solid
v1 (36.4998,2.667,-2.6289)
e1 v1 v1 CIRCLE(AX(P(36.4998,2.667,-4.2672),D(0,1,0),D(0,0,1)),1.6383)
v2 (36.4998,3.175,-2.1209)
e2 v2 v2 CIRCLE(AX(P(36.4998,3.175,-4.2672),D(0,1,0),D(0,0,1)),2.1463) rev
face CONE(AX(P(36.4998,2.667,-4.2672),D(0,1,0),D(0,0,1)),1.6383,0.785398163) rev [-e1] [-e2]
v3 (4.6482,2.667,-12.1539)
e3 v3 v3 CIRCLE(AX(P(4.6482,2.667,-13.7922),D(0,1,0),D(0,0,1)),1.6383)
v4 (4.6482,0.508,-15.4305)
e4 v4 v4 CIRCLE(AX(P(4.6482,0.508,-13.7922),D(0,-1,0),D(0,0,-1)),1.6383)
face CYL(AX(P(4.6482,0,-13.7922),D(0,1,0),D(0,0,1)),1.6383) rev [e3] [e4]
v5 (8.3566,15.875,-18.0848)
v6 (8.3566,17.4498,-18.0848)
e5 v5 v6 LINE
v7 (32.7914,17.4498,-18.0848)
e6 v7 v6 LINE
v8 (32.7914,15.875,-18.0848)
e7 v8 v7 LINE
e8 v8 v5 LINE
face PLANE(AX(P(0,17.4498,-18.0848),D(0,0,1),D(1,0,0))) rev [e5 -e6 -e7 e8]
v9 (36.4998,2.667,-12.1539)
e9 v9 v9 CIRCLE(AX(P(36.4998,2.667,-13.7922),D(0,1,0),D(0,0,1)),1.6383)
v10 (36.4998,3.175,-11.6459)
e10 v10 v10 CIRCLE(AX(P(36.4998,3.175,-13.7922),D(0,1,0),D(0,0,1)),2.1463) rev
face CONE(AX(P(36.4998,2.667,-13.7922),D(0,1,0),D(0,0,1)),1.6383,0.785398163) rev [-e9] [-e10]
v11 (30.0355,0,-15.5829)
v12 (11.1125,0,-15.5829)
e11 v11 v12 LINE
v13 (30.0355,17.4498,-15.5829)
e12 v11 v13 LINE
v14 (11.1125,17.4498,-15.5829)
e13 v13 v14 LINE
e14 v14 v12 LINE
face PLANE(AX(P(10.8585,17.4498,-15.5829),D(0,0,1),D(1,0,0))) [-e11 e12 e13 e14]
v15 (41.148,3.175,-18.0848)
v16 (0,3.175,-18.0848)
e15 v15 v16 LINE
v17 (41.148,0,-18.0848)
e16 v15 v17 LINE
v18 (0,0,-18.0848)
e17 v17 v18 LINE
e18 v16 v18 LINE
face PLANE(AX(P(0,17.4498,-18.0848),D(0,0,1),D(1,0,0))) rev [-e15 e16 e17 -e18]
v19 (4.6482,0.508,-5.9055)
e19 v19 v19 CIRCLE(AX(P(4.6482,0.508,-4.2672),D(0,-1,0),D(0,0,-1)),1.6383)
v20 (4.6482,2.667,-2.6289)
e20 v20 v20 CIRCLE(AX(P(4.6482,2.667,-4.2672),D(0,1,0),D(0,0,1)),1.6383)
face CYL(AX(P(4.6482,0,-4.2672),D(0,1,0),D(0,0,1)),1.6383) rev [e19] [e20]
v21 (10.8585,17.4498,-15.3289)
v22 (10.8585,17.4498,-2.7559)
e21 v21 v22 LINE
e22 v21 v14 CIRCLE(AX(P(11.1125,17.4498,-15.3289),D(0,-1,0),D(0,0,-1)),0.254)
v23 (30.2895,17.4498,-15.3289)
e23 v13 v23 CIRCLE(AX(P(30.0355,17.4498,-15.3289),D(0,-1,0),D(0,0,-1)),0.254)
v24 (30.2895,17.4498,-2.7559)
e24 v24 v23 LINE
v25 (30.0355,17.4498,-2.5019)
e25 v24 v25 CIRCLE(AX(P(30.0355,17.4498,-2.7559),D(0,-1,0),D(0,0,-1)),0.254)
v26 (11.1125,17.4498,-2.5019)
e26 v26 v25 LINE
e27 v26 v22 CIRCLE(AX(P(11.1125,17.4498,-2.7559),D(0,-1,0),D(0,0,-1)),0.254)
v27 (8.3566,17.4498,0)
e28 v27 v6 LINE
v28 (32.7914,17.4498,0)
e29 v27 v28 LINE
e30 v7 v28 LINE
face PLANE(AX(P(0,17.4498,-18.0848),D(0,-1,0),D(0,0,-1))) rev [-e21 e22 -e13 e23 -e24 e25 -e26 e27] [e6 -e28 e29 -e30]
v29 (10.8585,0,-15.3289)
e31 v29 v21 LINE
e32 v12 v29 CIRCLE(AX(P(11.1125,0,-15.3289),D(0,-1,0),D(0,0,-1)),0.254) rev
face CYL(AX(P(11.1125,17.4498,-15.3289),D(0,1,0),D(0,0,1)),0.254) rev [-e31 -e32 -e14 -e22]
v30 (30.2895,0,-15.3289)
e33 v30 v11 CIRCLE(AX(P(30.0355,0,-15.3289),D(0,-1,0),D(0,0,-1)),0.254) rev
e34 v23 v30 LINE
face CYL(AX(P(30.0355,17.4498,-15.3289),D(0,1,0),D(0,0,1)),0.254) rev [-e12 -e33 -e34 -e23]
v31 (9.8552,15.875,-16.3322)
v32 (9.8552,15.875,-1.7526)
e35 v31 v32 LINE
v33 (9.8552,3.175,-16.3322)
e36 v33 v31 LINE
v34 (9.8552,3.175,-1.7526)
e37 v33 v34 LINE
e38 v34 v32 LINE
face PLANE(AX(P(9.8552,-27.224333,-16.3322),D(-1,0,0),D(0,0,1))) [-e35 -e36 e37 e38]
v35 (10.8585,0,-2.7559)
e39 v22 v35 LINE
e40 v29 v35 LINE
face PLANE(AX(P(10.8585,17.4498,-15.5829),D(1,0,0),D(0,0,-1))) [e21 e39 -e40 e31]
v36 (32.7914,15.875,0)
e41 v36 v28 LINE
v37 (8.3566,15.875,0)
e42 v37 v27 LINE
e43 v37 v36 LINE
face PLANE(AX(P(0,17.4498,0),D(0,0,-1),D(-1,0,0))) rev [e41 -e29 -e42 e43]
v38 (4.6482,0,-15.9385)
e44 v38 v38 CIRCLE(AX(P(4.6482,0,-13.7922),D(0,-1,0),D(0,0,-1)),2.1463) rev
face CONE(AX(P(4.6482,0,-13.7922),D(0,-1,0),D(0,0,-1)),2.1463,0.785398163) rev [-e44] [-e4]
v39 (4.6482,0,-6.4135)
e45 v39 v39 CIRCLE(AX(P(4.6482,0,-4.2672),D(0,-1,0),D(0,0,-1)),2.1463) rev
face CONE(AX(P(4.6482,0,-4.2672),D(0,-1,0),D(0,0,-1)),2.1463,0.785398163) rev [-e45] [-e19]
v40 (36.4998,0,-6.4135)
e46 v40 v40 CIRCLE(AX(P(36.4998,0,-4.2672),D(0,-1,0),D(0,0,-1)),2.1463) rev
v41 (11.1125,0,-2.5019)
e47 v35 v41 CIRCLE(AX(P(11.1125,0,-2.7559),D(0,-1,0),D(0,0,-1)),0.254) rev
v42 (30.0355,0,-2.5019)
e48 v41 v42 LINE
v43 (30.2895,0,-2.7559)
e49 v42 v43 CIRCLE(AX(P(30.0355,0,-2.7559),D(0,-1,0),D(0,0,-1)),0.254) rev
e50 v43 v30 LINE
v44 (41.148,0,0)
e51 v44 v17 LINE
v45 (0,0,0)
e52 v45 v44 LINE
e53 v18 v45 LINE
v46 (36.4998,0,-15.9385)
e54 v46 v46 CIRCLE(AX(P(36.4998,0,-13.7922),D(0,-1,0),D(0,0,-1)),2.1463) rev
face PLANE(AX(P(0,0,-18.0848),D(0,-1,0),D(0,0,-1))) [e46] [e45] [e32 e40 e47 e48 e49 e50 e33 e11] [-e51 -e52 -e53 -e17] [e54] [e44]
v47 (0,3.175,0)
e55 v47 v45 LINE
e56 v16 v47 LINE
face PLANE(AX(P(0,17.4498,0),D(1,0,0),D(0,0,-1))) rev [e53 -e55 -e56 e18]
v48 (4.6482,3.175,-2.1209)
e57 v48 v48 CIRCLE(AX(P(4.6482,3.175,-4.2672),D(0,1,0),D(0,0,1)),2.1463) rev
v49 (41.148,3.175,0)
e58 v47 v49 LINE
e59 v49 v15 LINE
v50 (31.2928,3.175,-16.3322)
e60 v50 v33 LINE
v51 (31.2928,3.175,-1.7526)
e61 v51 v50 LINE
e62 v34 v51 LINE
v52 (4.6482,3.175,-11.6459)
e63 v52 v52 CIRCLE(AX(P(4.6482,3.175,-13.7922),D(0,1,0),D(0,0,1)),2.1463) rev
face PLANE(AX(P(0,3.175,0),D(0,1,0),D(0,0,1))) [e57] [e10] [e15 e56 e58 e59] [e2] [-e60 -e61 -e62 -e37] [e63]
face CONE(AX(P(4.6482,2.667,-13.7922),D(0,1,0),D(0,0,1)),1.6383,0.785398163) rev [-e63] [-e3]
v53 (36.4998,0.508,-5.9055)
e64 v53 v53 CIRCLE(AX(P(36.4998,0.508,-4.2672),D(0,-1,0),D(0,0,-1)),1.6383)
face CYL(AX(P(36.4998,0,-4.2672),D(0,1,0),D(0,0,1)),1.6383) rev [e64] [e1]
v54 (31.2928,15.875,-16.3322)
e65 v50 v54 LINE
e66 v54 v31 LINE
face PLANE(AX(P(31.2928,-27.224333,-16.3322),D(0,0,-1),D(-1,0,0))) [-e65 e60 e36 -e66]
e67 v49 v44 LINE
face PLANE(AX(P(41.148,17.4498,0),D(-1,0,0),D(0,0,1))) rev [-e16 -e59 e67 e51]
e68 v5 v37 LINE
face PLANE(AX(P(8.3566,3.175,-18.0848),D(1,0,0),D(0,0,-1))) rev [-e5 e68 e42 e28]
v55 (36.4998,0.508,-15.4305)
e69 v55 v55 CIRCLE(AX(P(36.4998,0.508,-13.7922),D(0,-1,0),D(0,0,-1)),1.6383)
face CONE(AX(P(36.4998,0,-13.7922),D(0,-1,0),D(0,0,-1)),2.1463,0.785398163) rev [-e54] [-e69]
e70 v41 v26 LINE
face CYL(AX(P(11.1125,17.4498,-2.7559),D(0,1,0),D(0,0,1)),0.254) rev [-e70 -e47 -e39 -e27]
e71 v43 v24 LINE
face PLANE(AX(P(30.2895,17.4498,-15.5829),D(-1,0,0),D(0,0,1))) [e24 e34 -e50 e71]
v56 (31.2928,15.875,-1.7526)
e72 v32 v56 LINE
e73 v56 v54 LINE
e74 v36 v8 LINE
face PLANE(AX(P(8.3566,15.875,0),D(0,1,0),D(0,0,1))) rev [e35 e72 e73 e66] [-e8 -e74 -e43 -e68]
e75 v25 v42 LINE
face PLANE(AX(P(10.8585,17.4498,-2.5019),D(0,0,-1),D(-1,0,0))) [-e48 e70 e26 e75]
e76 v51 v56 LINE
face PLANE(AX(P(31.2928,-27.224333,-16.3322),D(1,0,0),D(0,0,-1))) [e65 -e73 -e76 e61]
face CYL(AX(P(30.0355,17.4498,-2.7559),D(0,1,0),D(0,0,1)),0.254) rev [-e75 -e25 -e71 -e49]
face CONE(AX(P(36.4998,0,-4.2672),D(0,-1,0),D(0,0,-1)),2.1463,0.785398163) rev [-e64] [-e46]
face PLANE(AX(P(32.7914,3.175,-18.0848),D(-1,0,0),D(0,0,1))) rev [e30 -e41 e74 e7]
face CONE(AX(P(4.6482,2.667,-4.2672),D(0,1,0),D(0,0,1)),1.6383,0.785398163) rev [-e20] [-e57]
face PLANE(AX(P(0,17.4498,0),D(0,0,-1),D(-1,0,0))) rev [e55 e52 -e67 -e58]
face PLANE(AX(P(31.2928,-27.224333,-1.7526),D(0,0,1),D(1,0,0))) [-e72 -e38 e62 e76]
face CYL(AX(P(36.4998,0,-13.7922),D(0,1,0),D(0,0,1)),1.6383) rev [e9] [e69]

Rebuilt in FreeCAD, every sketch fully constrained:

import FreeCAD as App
import Part
import Sketcher
Q = App.Units.Quantity


def edges_at(feature, points):
    """Names of the edges that pass closest to the given points."""
    edges = feature.Shape.Edges
    near = lambda p: min(range(len(edges)), key=lambda i: edges[i].distToShape(Part.Vertex(*p))[0])
    return sorted({f"Edge{near(p) + 1}" for p in points})

doc = App.newDocument("Part")
body = doc.addObject("PartDesign::Body", "Body")

# Sketch on XZ plane
sketch1 = body.newObject("Sketcher::SketchObject", "Sketch")
sketch1.AttachmentSupport = (doc.getObject("XZ_Plane"), [""])
sketch1.MapMode = "FlatFace"
sketch1.addGeometry(Part.LineSegment(App.Vector(0, -18.0848, 0), App.Vector(0, 0, 0)), False)
sketch1.addGeometry(Part.LineSegment(App.Vector(0, 0, 0), App.Vector(41.148, 0, 0)), False)
sketch1.addGeometry(Part.LineSegment(App.Vector(41.148, 0, 0), App.Vector(41.148, -18.0848, 0)), False)
sketch1.addGeometry(Part.LineSegment(App.Vector(41.148, -18.0848, 0), App.Vector(0, -18.0848, 0)), False)
sketch1.addGeometry(Part.LineSegment(App.Vector(30.2895, -2.5019, 0), App.Vector(10.8585, -2.5019, 0)), False)
sketch1.addGeometry(Part.LineSegment(App.Vector(10.8585, -2.5019, 0), App.Vector(10.8585, -15.5829, 0)), False)
sketch1.addGeometry(Part.LineSegment(App.Vector(10.8585, -15.5829, 0), App.Vector(30.2895, -15.5829, 0)), False)
sketch1.addGeometry(Part.LineSegment(App.Vector(30.2895, -15.5829, 0), App.Vector(30.2895, -2.5019, 0)), False)
sketch1.addConstraint(Sketcher.Constraint("Coincident", 0, 2, 1, 1))
sketch1.addConstraint(Sketcher.Constraint("Coincident", 1, 2, 2, 1))
sketch1.addConstraint(Sketcher.Constraint("Coincident", 2, 2, 3, 1))
sketch1.addConstraint(Sketcher.Constraint("Coincident", 3, 2, 0, 1))
sketch1.addConstraint(Sketcher.Constraint("Coincident", 4, 2, 5, 1))
sketch1.addConstraint(Sketcher.Constraint("Coincident", 5, 2, 6, 1))
sketch1.addConstraint(Sketcher.Constraint("Coincident", 6, 2, 7, 1))
sketch1.addConstraint(Sketcher.Constraint("Coincident", 7, 2, 4, 1))
sketch1.addConstraint(Sketcher.Constraint("Vertical", 0))
sketch1.addConstraint(Sketcher.Constraint("Horizontal", 1))
sketch1.addConstraint(Sketcher.Constraint("Vertical", 2))
sketch1.addConstraint(Sketcher.Constraint("Horizontal", 3))
sketch1.addConstraint(Sketcher.Constraint("Horizontal", 4))
sketch1.addConstraint(Sketcher.Constraint("Vertical", 5))
sketch1.addConstraint(Sketcher.Constraint("Horizontal", 6))
sketch1.addConstraint(Sketcher.Constraint("Vertical", 7))
sketch1.addConstraint(Sketcher.Constraint("Coincident", 0, 2, -1, 1))
sketch1.addConstraint(Sketcher.Constraint("DistanceX", 1, 1, 1, 2, Q("1.62 in")))
sketch1.addConstraint(Sketcher.Constraint("DistanceX", 4, 2, 4, 1, Q("0.765 in")))
sketch1.addConstraint(Sketcher.Constraint("DistanceY", 0, 1, 0, 2, Q("0.712 in")))
sketch1.addConstraint(Sketcher.Constraint("DistanceY", 5, 2, 5, 1, Q("0.515 in")))
sketch1.addConstraint(Sketcher.Constraint("DistanceX", -1, 1, 4, 2, Q("0.4275 in")))
sketch1.addConstraint(Sketcher.Constraint("DistanceY", 4, 2, -1, 1, Q("0.0985 in")))
pad1 = body.newObject("PartDesign::Pad", "Pad")
pad1.Profile = sketch1
pad1.Length = Q("0.687 in")
pad1.Reversed = True

# Sketch on XZ plane
sketch2 = body.newObject("Sketcher::SketchObject", "Sketch001")
sketch2.AttachmentSupport = (doc.getObject("XZ_Plane"), [""])
sketch2.MapMode = "FlatFace"
sketch2.AttachmentOffset = App.Placement(App.Vector(0, 0, -0.687 * 25.4), App.Rotation())
sketch2.addGeometry(Part.LineSegment(App.Vector(8.3566, 0, 0), App.Vector(8.3566, -18.0848, 0)), False)
sketch2.addGeometry(Part.LineSegment(App.Vector(8.3566, -18.0848, 0), App.Vector(0, -18.0848, 0)), False)
sketch2.addGeometry(Part.LineSegment(App.Vector(0, -18.0848, 0), App.Vector(0, 0, 0)), False)
sketch2.addGeometry(Part.LineSegment(App.Vector(0, 0, 0), App.Vector(8.3566, 0, 0)), False)
sketch2.addGeometry(Part.LineSegment(App.Vector(41.148, 0, 0), App.Vector(41.148, -18.0848, 0)), False)
sketch2.addGeometry(Part.LineSegment(App.Vector(41.148, -18.0848, 0), App.Vector(32.7914, -18.0848, 0)), False)
sketch2.addGeometry(Part.LineSegment(App.Vector(32.7914, -18.0848, 0), App.Vector(32.7914, 0, 0)), False)
sketch2.addGeometry(Part.LineSegment(App.Vector(32.7914, 0, 0), App.Vector(41.148, 0, 0)), False)
sketch2.addConstraint(Sketcher.Constraint("Coincident", 0, 2, 1, 1))
sketch2.addConstraint(Sketcher.Constraint("Coincident", 1, 2, 2, 1))
sketch2.addConstraint(Sketcher.Constraint("Coincident", 2, 2, 3, 1))
sketch2.addConstraint(Sketcher.Constraint("Coincident", 3, 2, 0, 1))
sketch2.addConstraint(Sketcher.Constraint("Coincident", 4, 2, 5, 1))
sketch2.addConstraint(Sketcher.Constraint("Coincident", 5, 2, 6, 1))
sketch2.addConstraint(Sketcher.Constraint("Coincident", 6, 2, 7, 1))
sketch2.addConstraint(Sketcher.Constraint("Coincident", 7, 2, 4, 1))
sketch2.addConstraint(Sketcher.Constraint("Vertical", 0))
sketch2.addConstraint(Sketcher.Constraint("Horizontal", 1))
sketch2.addConstraint(Sketcher.Constraint("Vertical", 2))
sketch2.addConstraint(Sketcher.Constraint("Horizontal", 3))
sketch2.addConstraint(Sketcher.Constraint("Vertical", 4))
sketch2.addConstraint(Sketcher.Constraint("Horizontal", 5))
sketch2.addConstraint(Sketcher.Constraint("Vertical", 6))
sketch2.addConstraint(Sketcher.Constraint("Horizontal", 7))
sketch2.addConstraint(Sketcher.Constraint("Coincident", 2, 2, -1, 1))
sketch2.addConstraint(Sketcher.Constraint("PointOnObject", 6, 2, -1))
sketch2.addConstraint(Sketcher.Constraint("Horizontal", 1, 2, 4, 2))
sketch2.addConstraint(Sketcher.Constraint("Equal", 3, 5))
sketch2.addConstraint(Sketcher.Constraint("DistanceX", 1, 2, 1, 1, Q("0.329 in")))
sketch2.addConstraint(Sketcher.Constraint("DistanceY", 0, 2, 0, 1, Q("0.712 in")))
sketch2.addConstraint(Sketcher.Constraint("DistanceX", -1, 1, 4, 2, Q("1.62 in")))
pocket1 = body.newObject("PartDesign::Pocket", "Pocket")
pocket1.Profile = sketch2
pocket1.Length = Q("0.562 in")
pocket1.Reversed = True

# Sketch on XZ plane
sketch3 = body.newObject("Sketcher::SketchObject", "Sketch002")
sketch3.AttachmentSupport = (doc.getObject("XZ_Plane"), [""])
sketch3.MapMode = "FlatFace"
sketch3.AttachmentOffset = App.Placement(App.Vector(0, 0, -0.625 * 25.4), App.Rotation())
sketch3.addGeometry(Part.LineSegment(App.Vector(32.7914, 0, 0), App.Vector(32.7914, -18.0848, 0)), False)
sketch3.addGeometry(Part.LineSegment(App.Vector(32.7914, -18.0848, 0), App.Vector(8.3566, -18.0848, 0)), False)
sketch3.addGeometry(Part.LineSegment(App.Vector(8.3566, -18.0848, 0), App.Vector(8.3566, 0, 0)), False)
sketch3.addGeometry(Part.LineSegment(App.Vector(8.3566, 0, 0), App.Vector(32.7914, 0, 0)), False)
sketch3.addGeometry(Part.LineSegment(App.Vector(9.8552, -16.3322, 0), App.Vector(31.2928, -16.3322, 0)), False)
sketch3.addGeometry(Part.LineSegment(App.Vector(31.2928, -16.3322, 0), App.Vector(31.2928, -1.7526, 0)), False)
sketch3.addGeometry(Part.LineSegment(App.Vector(31.2928, -1.7526, 0), App.Vector(9.8552, -1.7526, 0)), False)
sketch3.addGeometry(Part.LineSegment(App.Vector(9.8552, -1.7526, 0), App.Vector(9.8552, -16.3322, 0)), False)
sketch3.addConstraint(Sketcher.Constraint("Coincident", 0, 2, 1, 1))
sketch3.addConstraint(Sketcher.Constraint("Coincident", 1, 2, 2, 1))
sketch3.addConstraint(Sketcher.Constraint("Coincident", 2, 2, 3, 1))
sketch3.addConstraint(Sketcher.Constraint("Coincident", 3, 2, 0, 1))
sketch3.addConstraint(Sketcher.Constraint("Coincident", 4, 2, 5, 1))
sketch3.addConstraint(Sketcher.Constraint("Coincident", 5, 2, 6, 1))
sketch3.addConstraint(Sketcher.Constraint("Coincident", 6, 2, 7, 1))
sketch3.addConstraint(Sketcher.Constraint("Coincident", 7, 2, 4, 1))
sketch3.addConstraint(Sketcher.Constraint("Vertical", 0))
sketch3.addConstraint(Sketcher.Constraint("Horizontal", 1))
sketch3.addConstraint(Sketcher.Constraint("Vertical", 2))
sketch3.addConstraint(Sketcher.Constraint("Horizontal", 3))
sketch3.addConstraint(Sketcher.Constraint("Horizontal", 4))
sketch3.addConstraint(Sketcher.Constraint("Vertical", 5))
sketch3.addConstraint(Sketcher.Constraint("Horizontal", 6))
sketch3.addConstraint(Sketcher.Constraint("Vertical", 7))
sketch3.addConstraint(Sketcher.Constraint("PointOnObject", 2, 2, -1))
sketch3.addConstraint(Sketcher.Constraint("DistanceX", 1, 2, 1, 1, Q("0.962 in")))
sketch3.addConstraint(Sketcher.Constraint("DistanceX", 4, 1, 4, 2, Q("0.844 in")))
sketch3.addConstraint(Sketcher.Constraint("DistanceY", 0, 2, 0, 1, Q("0.712 in")))
sketch3.addConstraint(Sketcher.Constraint("DistanceY", 5, 1, 5, 2, Q("0.574 in")))
sketch3.addConstraint(Sketcher.Constraint("DistanceX", -1, 1, 0, 2, Q("1.291 in")))
sketch3.addConstraint(Sketcher.Constraint("DistanceX", -1, 1, 4, 2, Q("1.232 in")))
sketch3.addConstraint(Sketcher.Constraint("DistanceY", 4, 2, -1, 1, Q("0.643 in")))
pocket2 = body.newObject("PartDesign::Pocket", "Pocket001")
pocket2.Profile = sketch3
pocket2.Length = Q("0.5 in")
pocket2.Reversed = True

# Sketch on XZ plane
sketch4 = body.newObject("Sketcher::SketchObject", "Sketch003")
sketch4.AttachmentSupport = (doc.getObject("XZ_Plane"), [""])
sketch4.MapMode = "FlatFace"
sketch4.AttachmentOffset = App.Placement(App.Vector(0, 0, -0.125 * 25.4), App.Rotation())
sketch4.addGeometry(Part.Circle(App.Vector(36.4998, -13.7922, 0), App.Vector(0, 0, 1), 1.6383), False)
sketch4.addGeometry(Part.Circle(App.Vector(36.4998, -4.2672, 0), App.Vector(0, 0, 1), 1.6383), False)
sketch4.addGeometry(Part.Circle(App.Vector(4.6482, -4.2672, 0), App.Vector(0, 0, 1), 1.6383), False)
sketch4.addGeometry(Part.Circle(App.Vector(4.6482, -13.7922, 0), App.Vector(0, 0, 1), 1.6383), False)
sketch4.addConstraint(Sketcher.Constraint("Equal", 0, 1))
sketch4.addConstraint(Sketcher.Constraint("Equal", 1, 2))
sketch4.addConstraint(Sketcher.Constraint("Equal", 2, 3))
sketch4.addConstraint(Sketcher.Constraint("Horizontal", 1, 3, 2, 3))
sketch4.addConstraint(Sketcher.Constraint("Horizontal", 0, 3, 3, 3))
sketch4.addConstraint(Sketcher.Constraint("Vertical", 0, 3, 1, 3))
sketch4.addConstraint(Sketcher.Constraint("Vertical", 2, 3, 3, 3))
sketch4.addConstraint(Sketcher.Constraint("Diameter", 0, Q("0.129 in")))
sketch4.addConstraint(Sketcher.Constraint("DistanceX", -1, 1, 0, 3, Q("1.437 in")))
sketch4.addConstraint(Sketcher.Constraint("DistanceY", 0, 3, -1, 1, Q("0.543 in")))
sketch4.addConstraint(Sketcher.Constraint("DistanceY", 1, 3, -1, 1, Q("0.168 in")))
sketch4.addConstraint(Sketcher.Constraint("DistanceX", -1, 1, 2, 3, Q("0.183 in")))
pocket3 = body.newObject("PartDesign::Pocket", "Pocket002")
pocket3.Profile = sketch4
pocket3.Type = "ThroughAll"
pocket3.Reversed = True
doc.recompute()

chamfer = body.newObject("PartDesign::Chamfer", "Chamfer")
chamfer.Base = (pocket3, edges_at(pocket3, [
    (36.5, 3.175, -15.431),
    (36.5, 3.175, -5.905),
    (4.648, 3.175, -5.905),
    (4.648, 3.175, -15.431),
]))
chamfer.Size = Q("0.02 in")
doc.recompute()

fillet = body.newObject("PartDesign::Fillet", "Fillet")
fillet.Base = (chamfer, edges_at(chamfer, [
    (10.858, 8.725, -15.583),
    (10.858, 8.725, -2.502),
    (30.29, 8.725, -2.502),
    (30.29, 8.725, -15.583),
]))
fillet.Radius = Q("0.01 in")
doc.recompute()

chamfer2 = body.newObject("PartDesign::Chamfer", "Chamfer001")
chamfer2.Base = (fillet, edges_at(fillet, [
    (36.5, 0, -15.431),
    (36.5, 0, -5.905),
    (4.648, 0, -5.905),
    (4.648, 0, -15.431),
]))
chamfer2.Size = Q("0.02 in")

doc.recompute()
